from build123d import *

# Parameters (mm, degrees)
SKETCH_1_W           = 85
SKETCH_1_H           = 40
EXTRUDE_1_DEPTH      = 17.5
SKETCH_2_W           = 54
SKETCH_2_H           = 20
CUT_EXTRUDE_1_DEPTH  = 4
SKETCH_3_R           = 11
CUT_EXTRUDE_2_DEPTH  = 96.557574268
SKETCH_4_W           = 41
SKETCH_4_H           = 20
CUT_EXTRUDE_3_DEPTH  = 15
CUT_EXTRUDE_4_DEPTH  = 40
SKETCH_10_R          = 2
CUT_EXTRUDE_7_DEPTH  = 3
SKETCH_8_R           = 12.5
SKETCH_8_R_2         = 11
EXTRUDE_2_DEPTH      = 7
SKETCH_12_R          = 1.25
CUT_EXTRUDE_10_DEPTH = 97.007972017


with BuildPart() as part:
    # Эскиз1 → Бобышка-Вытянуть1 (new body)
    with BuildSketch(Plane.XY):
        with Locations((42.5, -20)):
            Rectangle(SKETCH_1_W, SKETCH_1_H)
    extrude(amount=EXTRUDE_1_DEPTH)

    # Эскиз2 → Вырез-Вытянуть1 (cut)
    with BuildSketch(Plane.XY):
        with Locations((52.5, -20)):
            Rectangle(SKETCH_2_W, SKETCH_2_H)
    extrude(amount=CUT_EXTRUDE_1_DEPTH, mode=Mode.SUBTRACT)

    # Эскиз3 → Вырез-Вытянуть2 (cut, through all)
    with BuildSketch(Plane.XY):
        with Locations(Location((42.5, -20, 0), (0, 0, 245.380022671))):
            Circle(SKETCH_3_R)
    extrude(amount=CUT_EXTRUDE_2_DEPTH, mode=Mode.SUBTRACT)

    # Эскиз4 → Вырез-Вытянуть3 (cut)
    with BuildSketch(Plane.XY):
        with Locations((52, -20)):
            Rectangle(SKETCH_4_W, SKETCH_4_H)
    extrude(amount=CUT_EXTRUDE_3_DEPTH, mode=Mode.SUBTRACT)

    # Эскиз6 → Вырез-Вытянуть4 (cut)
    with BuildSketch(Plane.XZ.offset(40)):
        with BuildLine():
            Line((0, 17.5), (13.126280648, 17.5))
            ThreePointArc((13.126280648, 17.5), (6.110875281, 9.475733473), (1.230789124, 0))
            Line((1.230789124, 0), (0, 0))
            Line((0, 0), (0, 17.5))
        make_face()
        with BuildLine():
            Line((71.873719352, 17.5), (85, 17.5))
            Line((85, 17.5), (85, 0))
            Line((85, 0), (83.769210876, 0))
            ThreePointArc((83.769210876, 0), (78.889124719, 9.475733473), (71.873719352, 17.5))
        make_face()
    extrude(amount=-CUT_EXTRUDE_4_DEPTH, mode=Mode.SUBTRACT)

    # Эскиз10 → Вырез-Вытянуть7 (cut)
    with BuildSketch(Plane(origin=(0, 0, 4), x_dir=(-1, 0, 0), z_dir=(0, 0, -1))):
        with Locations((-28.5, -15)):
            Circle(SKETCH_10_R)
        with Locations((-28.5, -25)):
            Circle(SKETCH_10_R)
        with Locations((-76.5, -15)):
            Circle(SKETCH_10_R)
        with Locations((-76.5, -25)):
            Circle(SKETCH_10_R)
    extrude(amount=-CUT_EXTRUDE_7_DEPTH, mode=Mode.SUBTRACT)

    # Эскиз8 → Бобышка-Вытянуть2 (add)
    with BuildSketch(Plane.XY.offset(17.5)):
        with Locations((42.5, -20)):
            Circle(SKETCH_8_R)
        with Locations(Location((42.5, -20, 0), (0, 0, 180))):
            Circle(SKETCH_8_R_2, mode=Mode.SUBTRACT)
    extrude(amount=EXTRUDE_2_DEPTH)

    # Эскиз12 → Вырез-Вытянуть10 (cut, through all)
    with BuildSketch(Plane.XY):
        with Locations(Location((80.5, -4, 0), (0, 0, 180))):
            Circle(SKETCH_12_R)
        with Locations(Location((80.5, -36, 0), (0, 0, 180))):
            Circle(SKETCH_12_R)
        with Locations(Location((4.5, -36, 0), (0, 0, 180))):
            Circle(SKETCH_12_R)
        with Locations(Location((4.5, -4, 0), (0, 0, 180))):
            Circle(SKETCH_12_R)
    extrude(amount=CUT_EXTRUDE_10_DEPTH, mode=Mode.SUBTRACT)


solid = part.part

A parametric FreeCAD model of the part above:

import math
import FreeCAD as App
import Part
import Sketcher
Q = App.Units.Quantity


def add_polygon(sketch, points):
    """Adds a closed chain of lines whose ends are joined by coincident constraints."""
    first, n = sketch.GeometryCount, len(points)
    for a, b in zip(points, points[1:] + points[:1]):
        sketch.addGeometry(Part.LineSegment(App.Vector(*a, 0), App.Vector(*b, 0)), False)
    for i in range(n):
        sketch.addConstraint(Sketcher.Constraint("Coincident", first + i, 2, first + (i + 1) % n, 1))

doc = App.newDocument("Part")
body = doc.addObject("PartDesign::Body", "Body")

# Sketch on XY plane
sketch1 = doc.addObject("Sketcher::SketchObject", "Sketch")
body.addObject(sketch1)
sketch1.AttachmentSupport = (doc.XY_Plane, [""])
sketch1.MapMode = "FlatFace"
add_polygon(sketch1, [(0, 0), (0, -40), (85, -40), (85, 0)])  # lines 0-3
sketch1.addConstraint(Sketcher.Constraint("Vertical", 0))
sketch1.addConstraint(Sketcher.Constraint("Horizontal", 1))
sketch1.addConstraint(Sketcher.Constraint("Vertical", 2))
sketch1.addConstraint(Sketcher.Constraint("Horizontal", 3))
sketch1.addConstraint(Sketcher.Constraint("Coincident", 3, 2, -1, 1))
sketch1.addConstraint(Sketcher.Constraint("DistanceX", 1, 1, 1, 2, Q("85 mm")))
sketch1.addConstraint(Sketcher.Constraint("DistanceY", 0, 2, 0, 1, Q("40 mm")))
pad1 = doc.addObject("PartDesign::Pad", "Pad")
body.addObject(pad1)
pad1.Profile = sketch1
pad1.Length = 17.5

# Sketch on XY plane
sketch2 = doc.addObject("Sketcher::SketchObject", "Sketch001")
body.addObject(sketch2)
sketch2.AttachmentSupport = (doc.XY_Plane, [""])
sketch2.MapMode = "FlatFace"
add_polygon(sketch2, [(26, -10), (26, -30), (80, -30), (80, -10)])  # lines 0-3
sketch2.addConstraint(Sketcher.Constraint("Vertical", 0))
sketch2.addConstraint(Sketcher.Constraint("Horizontal", 1))
sketch2.addConstraint(Sketcher.Constraint("Vertical", 2))
sketch2.addConstraint(Sketcher.Constraint("Horizontal", 3))
sketch2.addConstraint(Sketcher.Constraint("DistanceX", 1, 1, 1, 2, Q("54 mm")))
sketch2.addConstraint(Sketcher.Constraint("DistanceY", 0, 2, 0, 1, Q("20 mm")))
sketch2.addConstraint(Sketcher.Constraint("DistanceY", 0, 2, -1, 1, Q("30 mm")))
sketch2.addConstraint(Sketcher.Constraint("DistanceX", -1, 1, 0, 2, Q("25.5 mm")))
pocket1 = doc.addObject("PartDesign::Pocket", "Pocket")
body.addObject(pocket1)
pocket1.Profile = sketch2
pocket1.Length = 4
pocket1.Reversed = True

# Sketch on XY plane
sketch3 = doc.addObject("Sketcher::SketchObject", "Sketch002")
body.addObject(sketch3)
sketch3.AttachmentSupport = (doc.XY_Plane, [""])
sketch3.MapMode = "FlatFace"
sketch3.addGeometry(Part.Circle(App.Vector(42, -20, 0), App.Vector(0, 0, 1), 11), False)
sketch3.addConstraint(Sketcher.Constraint("Diameter", 0, Q("22 mm")))
sketch3.addConstraint(Sketcher.Constraint("DistanceY", 0, 3, -1, 1, Q("20 mm")))
sketch3.addConstraint(Sketcher.Constraint("DistanceX", -1, 1, 0, 3, Q("42.5 mm")))
pocket2 = doc.addObject("PartDesign::Pocket", "Pocket001")
body.addObject(pocket2)
pocket2.Profile = sketch3
pocket2.Type = "ThroughAll"
pocket2.Reversed = True

# Sketch on XY plane
sketch4 = doc.addObject("Sketcher::SketchObject", "Sketch003")
body.addObject(sketch4)
sketch4.AttachmentSupport = (doc.XY_Plane, [""])
sketch4.MapMode = "FlatFace"
add_polygon(sketch4, [(32, -10), (32, -30), (72, -30), (72, -10)])  # lines 0-3
sketch4.addConstraint(Sketcher.Constraint("Vertical", 0))
sketch4.addConstraint(Sketcher.Constraint("Horizontal", 1))
sketch4.addConstraint(Sketcher.Constraint("Vertical", 2))
sketch4.addConstraint(Sketcher.Constraint("Horizontal", 3))
sketch4.addConstraint(Sketcher.Constraint("DistanceX", 1, 1, 1, 2, Q("41 mm")))
sketch4.addConstraint(Sketcher.Constraint("DistanceY", 0, 2, 0, 1, Q("20 mm")))
sketch4.addConstraint(Sketcher.Constraint("DistanceY", 0, 2, -1, 1, Q("30 mm")))
sketch4.addConstraint(Sketcher.Constraint("DistanceX", -1, 1, 0, 2, Q("31.5 mm")))
pocket3 = doc.addObject("PartDesign::Pocket", "Pocket002")
body.addObject(pocket3)
pocket3.Profile = sketch4
pocket3.Length = 15
pocket3.Reversed = True

# Sketch on XZ plane
sketch5 = doc.addObject("Sketcher::SketchObject", "Sketch004")
body.addObject(sketch5)
sketch5.AttachmentSupport = (doc.XZ_Plane, [""])
sketch5.MapMode = "FlatFace"
sketch5.AttachmentOffset = App.Placement(App.Vector(0, 0, 40), App.Rotation())
sketch5.addGeometry(Part.LineSegment(App.Vector(13.1, 17.5, 0), App.Vector(0, 17.5, 0)), False)
sketch5.addGeometry(Part.LineSegment(App.Vector(0, 17.5, 0), App.Vector(0, 0, 0)), False)
sketch5.addGeometry(Part.LineSegment(App.Vector(0, 0, 0), App.Vector(1.2, 0, 0)), False)
sketch5.addGeometry(Part.ArcOfCircle(Part.Circle(App.Vector(42.5, -15.3, 0), App.Vector(0, 0, 1), 44), math.radians(132), math.radians(160)), False)
sketch5.addGeometry(Part.LineSegment(App.Vector(85, 17.5, 0), App.Vector(71.9, 17.5, 0)), False)
sketch5.addGeometry(Part.ArcOfCircle(Part.Circle(App.Vector(42.5, -15.3, 0), App.Vector(0, 0, 1), 44), math.radians(20), math.radians(48)), False)
sketch5.addGeometry(Part.LineSegment(App.Vector(83.8, 0, 0), App.Vector(85, 0, 0)), False)
sketch5.addGeometry(Part.LineSegment(App.Vector(85, 0, 0), App.Vector(85, 17.5, 0)), False)
sketch5.addConstraint(Sketcher.Constraint("Coincident", 0, 2, 1, 1))
sketch5.addConstraint(Sketcher.Constraint("Coincident", 1, 2, 2, 1))
sketch5.addConstraint(Sketcher.Constraint("Coincident", 2, 2, 3, 2))
sketch5.addConstraint(Sketcher.Constraint("Coincident", 3, 1, 0, 1))
sketch5.addConstraint(Sketcher.Constraint("Coincident", 4, 2, 5, 2))
sketch5.addConstraint(Sketcher.Constraint("Coincident", 5, 1, 6, 1))
sketch5.addConstraint(Sketcher.Constraint("Coincident", 6, 2, 7, 1))
sketch5.addConstraint(Sketcher.Constraint("Coincident", 7, 2, 4, 1))
sketch5.addConstraint(Sketcher.Constraint("Horizontal", 0))
sketch5.addConstraint(Sketcher.Constraint("Vertical", 1))
sketch5.addConstraint(Sketcher.Constraint("Horizontal", 2))
sketch5.addConstraint(Sketcher.Constraint("Horizontal", 4))
sketch5.addConstraint(Sketcher.Constraint("Horizontal", 6))
sketch5.addConstraint(Sketcher.Constraint("Vertical", 7))
sketch5.addConstraint(Sketcher.Constraint("Coincident", 1, 2, -1, 1))
sketch5.addConstraint(Sketcher.Constraint("Coincident", 5, 3, 3, 3))
sketch5.addConstraint(Sketcher.Constraint("Equal", 3, 5))
sketch5.addConstraint(Sketcher.Constraint("PointOnObject", 5, 1, -1))
sketch5.addConstraint(Sketcher.Constraint("Horizontal", 3, 1, 4, 2))
sketch5.addConstraint(Sketcher.Constraint("Equal", 0, 4))
sketch5.addConstraint(Sketcher.Constraint("Radius", 3, Q("44 mm")))
sketch5.addConstraint(Sketcher.Constraint("DistanceY", 1, 2, 1, 1, Q("17.5 mm")))
sketch5.addConstraint(Sketcher.Constraint("DistanceX", -1, 1, 6, 2, Q("85 mm")))
sketch5.addConstraint(Sketcher.Constraint("DistanceX", 0, 2, 0, 1, Q("13.126281 mm")))
pocket4 = doc.addObject("PartDesign::Pocket", "Pocket003")
body.addObject(pocket4)
pocket4.Profile = sketch5
pocket4.Length = 40

# Sketch on XY plane
sketch6 = doc.addObject("Sketcher::SketchObject", "Sketch005")
body.addObject(sketch6)
sketch6.AttachmentSupport = (doc.XY_Plane, [""])
sketch6.MapMode = "FlatFace"
sketch6.AttachmentOffset = App.Placement(App.Vector(0, 0, 4), App.Rotation())
sketch6.addGeometry(Part.Circle(App.Vector(28.5, -15, 0), App.Vector(0, 0, 1), 2), False)
sketch6.addGeometry(Part.Circle(App.Vector(28.5, -25, 0), App.Vector(0, 0, 1), 2), False)
sketch6.addGeometry(Part.Circle(App.Vector(76.5, -15, 0), App.Vector(0, 0, 1), 2), False)
sketch6.addGeometry(Part.Circle(App.Vector(76.5, -25, 0), App.Vector(0, 0, 1), 2), False)
sketch6.addConstraint(Sketcher.Constraint("Equal", 0, 1))
sketch6.addConstraint(Sketcher.Constraint("Equal", 1, 2))
sketch6.addConstraint(Sketcher.Constraint("Equal", 2, 3))
sketch6.addConstraint(Sketcher.Constraint("Horizontal", 0, 3, 2, 3))
sketch6.addConstraint(Sketcher.Constraint("Horizontal", 1, 3, 3, 3))
sketch6.addConstraint(Sketcher.Constraint("Vertical", 0, 3, 1, 3))
sketch6.addConstraint(Sketcher.Constraint("Vertical", 2, 3, 3, 3))
sketch6.addConstraint(Sketcher.Constraint("Diameter", 0, Q("4 mm")))
sketch6.addConstraint(Sketcher.Constraint("DistanceY", 0, 3, -1, 1, Q("15 mm")))
sketch6.addConstraint(Sketcher.Constraint("DistanceY", 1, 3, -1, 1, Q("25 mm")))
sketch6.addConstraint(Sketcher.Constraint("DistanceX", 0, 3, 2, 3, Q("48 mm")))
sketch6.addConstraint(Sketcher.Constraint("DistanceX", -1, 1, 0, 3, Q("28.5 mm")))
pocket5 = doc.addObject("PartDesign::Pocket", "Pocket004")
body.addObject(pocket5)
pocket5.Profile = sketch6
pocket5.Length = 3
pocket5.Reversed = True

# Sketch on XY plane
sketch7 = doc.addObject("Sketcher::SketchObject", "Sketch006")
body.addObject(sketch7)
sketch7.AttachmentSupport = (doc.XY_Plane, [""])
sketch7.MapMode = "FlatFace"
sketch7.AttachmentOffset = App.Placement(App.Vector(0, 0, 17.5), App.Rotation())
sketch7.addGeometry(Part.Circle(App.Vector(42, -20, 0), App.Vector(0, 0, 1), 12), False)
sketch7.addGeometry(Part.Circle(App.Vector(42, -20, 0), App.Vector(0, 0, 1), 11), False)
sketch7.addConstraint(Sketcher.Constraint("Coincident", 1, 3, 0, 3))
sketch7.addConstraint(Sketcher.Constraint("Diameter", 0, Q("25 mm")))
sketch7.addConstraint(Sketcher.Constraint("Diameter", 1, Q("22 mm")))
sketch7.addConstraint(Sketcher.Constraint("DistanceY", 0, 3, -1, 1, Q("20 mm")))
sketch7.addConstraint(Sketcher.Constraint("DistanceX", -1, 1, 0, 3, Q("42.5 mm")))
pad2 = doc.addObject("PartDesign::Pad", "Pad001")
body.addObject(pad2)
pad2.Profile = sketch7
pad2.Length = 7

# Sketch on XY plane
sketch8 = doc.addObject("Sketcher::SketchObject", "Sketch007")
body.addObject(sketch8)
sketch8.AttachmentSupport = (doc.XY_Plane, [""])
sketch8.MapMode = "FlatFace"
sketch8.addGeometry(Part.Circle(App.Vector(80.5, -4, 0), App.Vector(0, 0, 1), 1.2), False)
sketch8.addGeometry(Part.Circle(App.Vector(80.5, -36, 0), App.Vector(0, 0, 1), 1.2), False)
sketch8.addGeometry(Part.Circle(App.Vector(4.5, -36, 0), App.Vector(0, 0, 1), 1.2), False)
sketch8.addGeometry(Part.Circle(App.Vector(4.5, -4, 0), App.Vector(0, 0, 1), 1.2), False)
sketch8.addConstraint(Sketcher.Constraint("Equal", 0, 1))
sketch8.addConstraint(Sketcher.Constraint("Equal", 1, 2))
sketch8.addConstraint(Sketcher.Constraint("Equal", 2, 3))
sketch8.addConstraint(Sketcher.Constraint("Horizontal", 1, 3, 2, 3))
sketch8.addConstraint(Sketcher.Constraint("Horizontal", 0, 3, 3, 3))
sketch8.addConstraint(Sketcher.Constraint("Vertical", 0, 3, 1, 3))
sketch8.addConstraint(Sketcher.Constraint("Vertical", 2, 3, 3, 3))
sketch8.addConstraint(Sketcher.Constraint("Diameter", 0, Q("2.5 mm")))
sketch8.addConstraint(Sketcher.Constraint("DistanceY", 0, 3, -1, 1, Q("4 mm")))
sketch8.addConstraint(Sketcher.Constraint("DistanceY", 1, 3, -1, 1, Q("36 mm")))
sketch8.addConstraint(Sketcher.Constraint("DistanceX", 2, 3, 1, 3, Q("76 mm")))
sketch8.addConstraint(Sketcher.Constraint("DistanceX", -1, 1, 0, 3, Q("80.5 mm")))
pocket6 = doc.addObject("PartDesign::Pocket", "Pocket005")
body.addObject(pocket6)
pocket6.Profile = sketch8
pocket6.Type = "ThroughAll"
pocket6.Reversed = True

doc.recompute()
